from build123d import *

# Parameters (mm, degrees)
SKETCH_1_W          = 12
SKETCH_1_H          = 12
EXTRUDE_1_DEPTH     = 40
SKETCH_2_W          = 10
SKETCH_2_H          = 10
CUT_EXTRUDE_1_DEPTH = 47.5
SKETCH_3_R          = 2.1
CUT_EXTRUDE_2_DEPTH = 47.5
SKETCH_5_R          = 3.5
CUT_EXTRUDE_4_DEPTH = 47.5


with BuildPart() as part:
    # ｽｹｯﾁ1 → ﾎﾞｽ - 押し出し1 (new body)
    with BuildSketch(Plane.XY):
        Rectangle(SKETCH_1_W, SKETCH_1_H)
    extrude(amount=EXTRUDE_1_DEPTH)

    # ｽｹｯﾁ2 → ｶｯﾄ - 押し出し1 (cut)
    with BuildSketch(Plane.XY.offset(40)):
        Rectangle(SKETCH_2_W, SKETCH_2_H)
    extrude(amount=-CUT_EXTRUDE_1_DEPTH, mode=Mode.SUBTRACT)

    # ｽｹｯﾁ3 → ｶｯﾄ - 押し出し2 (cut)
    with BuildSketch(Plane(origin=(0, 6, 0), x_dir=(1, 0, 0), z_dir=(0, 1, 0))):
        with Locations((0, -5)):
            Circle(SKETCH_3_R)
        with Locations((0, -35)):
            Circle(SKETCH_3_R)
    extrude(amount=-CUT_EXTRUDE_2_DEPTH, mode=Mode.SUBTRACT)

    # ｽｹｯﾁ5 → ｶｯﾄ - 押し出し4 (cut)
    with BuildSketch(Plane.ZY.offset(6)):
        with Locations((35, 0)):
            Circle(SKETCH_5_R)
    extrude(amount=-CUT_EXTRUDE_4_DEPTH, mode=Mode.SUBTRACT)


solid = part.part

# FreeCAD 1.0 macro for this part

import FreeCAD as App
import Part
import Sketcher

V = App.Vector

doc = App.newDocument("Part")
params = doc.addObject("Spreadsheet::Sheet", "Params")
for row, (alias, value) in enumerate([
    ("sketch1_width", "12 mm"),
    ("pad1_length", "40 mm"),
    ("sketch2_width", "10 mm"),
    ("pocket1_length", "47.5 mm"),
    ("sketch3_diameter", "4.2 mm"),
    ("pocket2_length", "47.5 mm"),
    ("sketch4_diameter", "7 mm"),
    ("pocket3_length", "47.5 mm"),
], start=1):
    params.set(f"A{row}", alias)
    params.set(f"B{row}", "=" + value)
    params.setAlias(f"B{row}", alias)

body = doc.addObject("PartDesign::Body", "Body")

# Sketch on XY plane
sketch1 = doc.addObject("Sketcher::SketchObject", "Sketch")
body.addObject(sketch1)
sketch1.AttachmentSupport = (doc.XY_Plane, [""])
sketch1.MapMode = "FlatFace"
sketch1.addGeometry([
    Part.LineSegment(V(-6, 6, 0), V(-6, -6, 0)),
    Part.LineSegment(V(-6, -6, 0), V(6, -6, 0)),
    Part.LineSegment(V(6, -6, 0), V(6, 6, 0)),
    Part.LineSegment(V(6, 6, 0), V(-6, 6, 0)),
], False)
sketch1.addConstraint([
    Sketcher.Constraint("Coincident", 0, 2, 1, 1),
    Sketcher.Constraint("Coincident", 1, 2, 2, 1),
    Sketcher.Constraint("Coincident", 2, 2, 3, 1),
    Sketcher.Constraint("Coincident", 3, 2, 0, 1),
    Sketcher.Constraint("Vertical", 0),
    Sketcher.Constraint("Horizontal", 1),
    Sketcher.Constraint("Vertical", 2),
    Sketcher.Constraint("Horizontal", 3),
    Sketcher.Constraint("Symmetric", 0, 2, 2, 2, -1, 1),
    Sketcher.Constraint("Equal", 3, 0),
    Sketcher.Constraint("DistanceX", 1, 1, 1, 2, 12.0),
])
sketch1.setExpression("Constraints[10]", "Params.sketch1_width")
pad1 = doc.addObject("PartDesign::Pad", "Pad")
body.addObject(pad1)
pad1.Profile = sketch1
pad1.setExpression("Length", "Params.pad1_length")

# Sketch on XY plane
sketch2 = doc.addObject("Sketcher::SketchObject", "Sketch001")
body.addObject(sketch2)
sketch2.AttachmentSupport = (doc.XY_Plane, [""])
sketch2.MapMode = "FlatFace"
sketch2.AttachmentOffset = App.Placement(V(0, 0, 40), App.Rotation())
sketch2.addGeometry([
    Part.LineSegment(V(-5, 5, 0), V(-5, -5, 0)),
    Part.LineSegment(V(-5, -5, 0), V(5, -5, 0)),
    Part.LineSegment(V(5, -5, 0), V(5, 5, 0)),
    Part.LineSegment(V(5, 5, 0), V(-5, 5, 0)),
], False)
sketch2.addConstraint([
    Sketcher.Constraint("Coincident", 0, 2, 1, 1),
    Sketcher.Constraint("Coincident", 1, 2, 2, 1),
    Sketcher.Constraint("Coincident", 2, 2, 3, 1),
    Sketcher.Constraint("Coincident", 3, 2, 0, 1),
    Sketcher.Constraint("Vertical", 0),
    Sketcher.Constraint("Horizontal", 1),
    Sketcher.Constraint("Vertical", 2),
    Sketcher.Constraint("Horizontal", 3),
    Sketcher.Constraint("Symmetric", 0, 2, 2, 2, -1, 1),
    Sketcher.Constraint("Equal", 3, 0),
    Sketcher.Constraint("DistanceX", 1, 1, 1, 2, 10.0),
])
sketch2.setExpression("Constraints[10]", "Params.sketch2_width")
pocket1 = doc.addObject("PartDesign::Pocket", "Pocket")
body.addObject(pocket1)
pocket1.Profile = sketch2
pocket1.setExpression("Length", "Params.pocket1_length")

# Sketch on XZ plane
sketch3 = doc.addObject("Sketcher::SketchObject", "Sketch002")
body.addObject(sketch3)
sketch3.AttachmentSupport = (doc.XZ_Plane, [""])
sketch3.MapMode = "FlatFace"
sketch3.AttachmentOffset = App.Placement(V(0, 0, -6), App.Rotation())
sketch3.addGeometry([
    Part.Circle(V(0, 5, 0), V(0, 0, 1), 2.1),
    Part.Circle(V(0, 35, 0), V(0, 0, 1), 2.1),
], False)
sketch3.addConstraint([
    Sketcher.Constraint("Equal", 0, 1),
    Sketcher.Constraint("PointOnObject", 0, 3, -2),
    Sketcher.Constraint("PointOnObject", 1, 3, -2),
    Sketcher.Constraint("Diameter", 0, 4.2),
    Sketcher.Constraint("DistanceY", -1, 1, 0, 3, 5.0),
    Sketcher.Constraint("DistanceY", -1, 1, 1, 3, 35.0),
])
sketch3.setExpression("Constraints[3]", "Params.sketch3_diameter")
pocket2 = doc.addObject("PartDesign::Pocket", "Pocket001")
body.addObject(pocket2)
pocket2.Profile = sketch3
pocket2.setExpression("Length", "Params.pocket2_length")
pocket2.Reversed = True

# Sketch on YZ plane
sketch4 = doc.addObject("Sketcher::SketchObject", "Sketch003")
body.addObject(sketch4)
sketch4.AttachmentSupport = (doc.YZ_Plane, [""])
sketch4.MapMode = "FlatFace"
sketch4.AttachmentOffset = App.Placement(V(0, 0, -6), App.Rotation())
sketch4.addGeometry(Part.Circle(V(0, 35, 0), V(0, 0, 1), 3.5), False)
sketch4.addConstraint([
    Sketcher.Constraint("PointOnObject", 0, 3, -2),
    Sketcher.Constraint("Diameter", 0, 7.0),
    Sketcher.Constraint("DistanceY", -1, 1, 0, 3, 35.0),
])
sketch4.setExpression("Constraints[1]", "Params.sketch4_diameter")
pocket3 = doc.addObject("PartDesign::Pocket", "Pocket002")
body.addObject(pocket3)
pocket3.Profile = sketch4
pocket3.setExpression("Length", "Params.pocket3_length")
pocket3.Reversed = True

doc.recompute()
